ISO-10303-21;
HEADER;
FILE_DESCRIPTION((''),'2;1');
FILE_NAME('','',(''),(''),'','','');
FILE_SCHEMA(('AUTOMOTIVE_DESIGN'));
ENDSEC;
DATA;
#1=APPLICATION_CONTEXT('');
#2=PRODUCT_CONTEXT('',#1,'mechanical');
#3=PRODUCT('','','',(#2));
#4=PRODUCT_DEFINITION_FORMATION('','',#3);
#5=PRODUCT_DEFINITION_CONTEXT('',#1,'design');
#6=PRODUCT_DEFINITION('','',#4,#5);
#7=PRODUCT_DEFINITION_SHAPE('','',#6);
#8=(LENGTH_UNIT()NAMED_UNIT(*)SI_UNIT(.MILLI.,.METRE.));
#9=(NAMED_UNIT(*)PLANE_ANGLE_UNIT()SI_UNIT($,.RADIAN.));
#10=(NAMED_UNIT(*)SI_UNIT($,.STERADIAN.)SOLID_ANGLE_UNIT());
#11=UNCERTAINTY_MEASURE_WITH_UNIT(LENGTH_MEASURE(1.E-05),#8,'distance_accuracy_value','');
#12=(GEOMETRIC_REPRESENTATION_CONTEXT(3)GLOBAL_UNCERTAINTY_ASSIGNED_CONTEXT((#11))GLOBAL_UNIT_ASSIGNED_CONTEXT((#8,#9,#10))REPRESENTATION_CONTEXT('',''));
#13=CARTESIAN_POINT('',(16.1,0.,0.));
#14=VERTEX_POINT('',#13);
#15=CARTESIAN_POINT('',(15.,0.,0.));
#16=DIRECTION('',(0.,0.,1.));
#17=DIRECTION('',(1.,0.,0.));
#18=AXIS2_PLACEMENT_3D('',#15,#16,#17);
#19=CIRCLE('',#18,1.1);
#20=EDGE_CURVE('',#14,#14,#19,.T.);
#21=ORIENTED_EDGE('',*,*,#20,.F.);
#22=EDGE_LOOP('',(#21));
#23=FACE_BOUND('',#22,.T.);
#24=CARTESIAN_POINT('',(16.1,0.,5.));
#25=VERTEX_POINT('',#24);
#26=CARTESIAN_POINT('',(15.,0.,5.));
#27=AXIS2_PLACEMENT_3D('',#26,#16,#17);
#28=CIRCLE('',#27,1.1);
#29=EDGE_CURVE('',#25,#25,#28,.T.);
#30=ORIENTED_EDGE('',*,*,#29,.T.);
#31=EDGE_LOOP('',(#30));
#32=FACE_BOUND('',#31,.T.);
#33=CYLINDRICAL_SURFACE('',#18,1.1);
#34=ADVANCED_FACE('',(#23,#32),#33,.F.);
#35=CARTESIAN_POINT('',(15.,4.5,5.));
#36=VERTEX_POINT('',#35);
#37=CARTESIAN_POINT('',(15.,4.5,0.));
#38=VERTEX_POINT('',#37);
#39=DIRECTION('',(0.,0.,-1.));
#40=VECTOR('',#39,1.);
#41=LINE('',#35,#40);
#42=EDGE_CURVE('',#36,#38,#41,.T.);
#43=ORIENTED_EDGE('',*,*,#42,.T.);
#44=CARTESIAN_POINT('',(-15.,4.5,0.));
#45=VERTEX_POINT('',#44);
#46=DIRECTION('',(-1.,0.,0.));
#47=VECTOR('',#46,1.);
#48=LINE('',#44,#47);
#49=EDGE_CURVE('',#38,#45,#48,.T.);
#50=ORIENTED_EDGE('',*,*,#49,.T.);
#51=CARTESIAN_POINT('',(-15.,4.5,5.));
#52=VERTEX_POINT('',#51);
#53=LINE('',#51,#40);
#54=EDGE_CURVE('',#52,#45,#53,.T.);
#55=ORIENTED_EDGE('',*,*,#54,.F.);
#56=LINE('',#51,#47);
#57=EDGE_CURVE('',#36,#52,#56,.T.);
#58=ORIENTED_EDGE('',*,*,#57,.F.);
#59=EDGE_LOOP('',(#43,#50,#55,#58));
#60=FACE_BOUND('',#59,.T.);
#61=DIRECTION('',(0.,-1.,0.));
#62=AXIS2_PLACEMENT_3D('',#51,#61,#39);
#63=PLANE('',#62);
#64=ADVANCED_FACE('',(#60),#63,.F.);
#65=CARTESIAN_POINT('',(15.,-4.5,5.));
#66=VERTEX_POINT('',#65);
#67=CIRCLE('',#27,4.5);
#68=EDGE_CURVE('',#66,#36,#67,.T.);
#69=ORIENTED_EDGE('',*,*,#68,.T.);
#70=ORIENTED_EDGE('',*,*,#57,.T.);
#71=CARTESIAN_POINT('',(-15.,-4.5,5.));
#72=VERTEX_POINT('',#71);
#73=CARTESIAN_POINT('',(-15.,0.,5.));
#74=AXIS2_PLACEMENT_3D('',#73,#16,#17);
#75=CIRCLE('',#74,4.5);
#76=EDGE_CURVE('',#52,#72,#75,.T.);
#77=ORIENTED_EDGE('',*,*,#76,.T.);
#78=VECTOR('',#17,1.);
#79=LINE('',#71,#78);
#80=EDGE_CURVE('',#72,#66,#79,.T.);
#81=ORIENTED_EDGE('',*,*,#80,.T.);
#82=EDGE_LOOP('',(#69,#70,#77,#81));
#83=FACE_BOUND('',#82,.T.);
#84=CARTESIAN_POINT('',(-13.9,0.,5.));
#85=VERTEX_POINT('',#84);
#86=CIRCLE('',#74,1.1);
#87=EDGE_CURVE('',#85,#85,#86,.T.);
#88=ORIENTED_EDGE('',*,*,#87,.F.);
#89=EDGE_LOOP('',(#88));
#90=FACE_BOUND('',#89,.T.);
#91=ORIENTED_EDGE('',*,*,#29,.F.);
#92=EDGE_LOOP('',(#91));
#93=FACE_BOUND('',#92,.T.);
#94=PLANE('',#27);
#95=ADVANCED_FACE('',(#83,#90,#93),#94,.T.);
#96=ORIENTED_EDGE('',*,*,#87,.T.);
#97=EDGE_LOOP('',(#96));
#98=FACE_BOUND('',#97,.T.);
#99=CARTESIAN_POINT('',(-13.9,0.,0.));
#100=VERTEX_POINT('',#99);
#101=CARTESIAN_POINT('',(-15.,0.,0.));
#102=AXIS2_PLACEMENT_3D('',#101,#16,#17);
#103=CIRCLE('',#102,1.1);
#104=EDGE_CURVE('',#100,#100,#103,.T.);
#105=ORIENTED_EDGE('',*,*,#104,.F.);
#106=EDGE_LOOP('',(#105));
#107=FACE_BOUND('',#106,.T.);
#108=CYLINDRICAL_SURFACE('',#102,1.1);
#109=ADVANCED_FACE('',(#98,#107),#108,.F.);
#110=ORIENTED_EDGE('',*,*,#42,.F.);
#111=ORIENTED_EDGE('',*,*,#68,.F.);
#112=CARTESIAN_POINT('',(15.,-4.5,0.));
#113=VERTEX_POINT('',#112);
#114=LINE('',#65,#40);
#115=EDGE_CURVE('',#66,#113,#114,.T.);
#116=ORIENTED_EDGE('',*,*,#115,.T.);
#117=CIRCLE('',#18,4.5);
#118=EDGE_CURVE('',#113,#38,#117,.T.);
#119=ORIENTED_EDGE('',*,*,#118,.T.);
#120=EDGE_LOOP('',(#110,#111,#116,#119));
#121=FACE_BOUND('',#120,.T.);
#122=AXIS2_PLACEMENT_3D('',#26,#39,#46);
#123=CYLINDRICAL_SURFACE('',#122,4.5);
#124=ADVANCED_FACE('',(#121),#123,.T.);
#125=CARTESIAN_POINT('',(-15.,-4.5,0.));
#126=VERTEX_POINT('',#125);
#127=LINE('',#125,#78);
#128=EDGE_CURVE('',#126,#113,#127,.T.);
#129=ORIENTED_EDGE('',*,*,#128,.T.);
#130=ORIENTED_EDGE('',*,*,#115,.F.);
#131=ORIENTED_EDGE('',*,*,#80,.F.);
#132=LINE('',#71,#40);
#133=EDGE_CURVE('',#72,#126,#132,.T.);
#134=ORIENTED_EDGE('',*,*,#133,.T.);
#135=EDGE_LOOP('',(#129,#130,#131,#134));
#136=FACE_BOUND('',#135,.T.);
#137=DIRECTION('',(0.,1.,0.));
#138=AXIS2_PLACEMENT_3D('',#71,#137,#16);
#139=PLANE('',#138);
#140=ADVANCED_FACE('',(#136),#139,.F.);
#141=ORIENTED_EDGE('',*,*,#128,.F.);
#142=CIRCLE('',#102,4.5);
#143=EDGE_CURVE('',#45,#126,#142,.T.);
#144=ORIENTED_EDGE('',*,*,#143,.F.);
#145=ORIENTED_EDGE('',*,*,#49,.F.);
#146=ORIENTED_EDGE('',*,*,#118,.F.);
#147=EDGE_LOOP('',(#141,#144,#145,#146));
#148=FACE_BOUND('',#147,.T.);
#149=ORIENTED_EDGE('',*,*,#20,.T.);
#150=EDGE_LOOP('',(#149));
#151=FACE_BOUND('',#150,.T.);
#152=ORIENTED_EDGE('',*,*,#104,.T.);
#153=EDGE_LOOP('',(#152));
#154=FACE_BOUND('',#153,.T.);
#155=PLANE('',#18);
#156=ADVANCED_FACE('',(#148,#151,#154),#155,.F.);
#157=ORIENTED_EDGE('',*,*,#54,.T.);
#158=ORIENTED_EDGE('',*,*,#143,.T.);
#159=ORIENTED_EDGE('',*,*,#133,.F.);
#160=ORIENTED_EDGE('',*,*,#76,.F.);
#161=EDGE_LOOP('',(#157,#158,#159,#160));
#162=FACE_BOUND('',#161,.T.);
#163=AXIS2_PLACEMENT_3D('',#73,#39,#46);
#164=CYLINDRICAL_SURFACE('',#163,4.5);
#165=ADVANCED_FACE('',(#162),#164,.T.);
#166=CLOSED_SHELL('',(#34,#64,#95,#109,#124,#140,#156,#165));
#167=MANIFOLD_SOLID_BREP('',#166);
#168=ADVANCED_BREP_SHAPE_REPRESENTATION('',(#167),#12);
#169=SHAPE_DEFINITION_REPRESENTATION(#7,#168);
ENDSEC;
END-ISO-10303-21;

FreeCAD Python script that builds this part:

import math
import FreeCAD as App
import Part
import Sketcher

V = App.Vector

doc = App.newDocument("Part")
body = doc.addObject("PartDesign::Body", "Body")

# Sketch on XY plane
sketch1 = doc.addObject("Sketcher::SketchObject", "Sketch")
body.addObject(sketch1)
sketch1.AttachmentSupport = (doc.XY_Plane, [""])
sketch1.MapMode = "FlatFace"
sketch1.addGeometry([
    Part.LineSegment(V(-15, -4.5, 0), V(15, -4.5, 0)),
    Part.ArcOfCircle(Part.Circle(V(15, 0, 0), V(0, 0, 1), 4.5), math.radians(-90), math.radians(90)),
    Part.LineSegment(V(15, 4.5, 0), V(-15, 4.5, 0)),
    Part.ArcOfCircle(Part.Circle(V(-15, 0, 0), V(0, 0, 1), 4.5), math.radians(90), math.radians(270)),
], False)
sketch1.addConstraint([
    Sketcher.Constraint("Tangent", 0, 2, 1, 1),
    Sketcher.Constraint("Tangent", 1, 2, 2, 1),
    Sketcher.Constraint("Tangent", 2, 2, 3, 1),
    Sketcher.Constraint("Tangent", 3, 2, 0, 1),
    Sketcher.Constraint("Horizontal", 0),
    Sketcher.Constraint("Horizontal", 2),
    Sketcher.Constraint("Symmetric", 1, 3, 3, 3, -1, 1),
    Sketcher.Constraint("Radius", 1, 4.5),
    Sketcher.Constraint("DistanceX", 0, 1, 0, 2, 30.0),
])
pad1 = doc.addObject("PartDesign::Pad", "Pad")
body.addObject(pad1)
pad1.Profile = sketch1
pad1.Length = 5

# Sketch on XY plane
sketch2 = doc.addObject("Sketcher::SketchObject", "Sketch001")
body.addObject(sketch2)
sketch2.AttachmentSupport = (doc.XY_Plane, [""])
sketch2.MapMode = "FlatFace"
sketch2.AttachmentOffset = App.Placement(V(0, 0, 5), App.Rotation())
sketch2.addGeometry([
    Part.Circle(V(-15, 0, 0), V(0, 0, 1), 1.1),
    Part.Circle(V(15, 0, 0), V(0, 0, 1), 1.1),
], False)
sketch2.addConstraint([
    Sketcher.Constraint("Equal", 0, 1),
    Sketcher.Constraint("Symmetric", 0, 3, 1, 3, -1, 1),
    Sketcher.Constraint("PointOnObject", 0, 3, -1),
    Sketcher.Constraint("Diameter", 0, 2.2),
    Sketcher.Constraint("DistanceX", 0, 3, -1, 1, 15.0),
])
pocket1 = doc.addObject("PartDesign::Pocket", "Pocket")
body.addObject(pocket1)
pocket1.Profile = sketch2
pocket1.Type = "ThroughAll"

doc.recompute()
